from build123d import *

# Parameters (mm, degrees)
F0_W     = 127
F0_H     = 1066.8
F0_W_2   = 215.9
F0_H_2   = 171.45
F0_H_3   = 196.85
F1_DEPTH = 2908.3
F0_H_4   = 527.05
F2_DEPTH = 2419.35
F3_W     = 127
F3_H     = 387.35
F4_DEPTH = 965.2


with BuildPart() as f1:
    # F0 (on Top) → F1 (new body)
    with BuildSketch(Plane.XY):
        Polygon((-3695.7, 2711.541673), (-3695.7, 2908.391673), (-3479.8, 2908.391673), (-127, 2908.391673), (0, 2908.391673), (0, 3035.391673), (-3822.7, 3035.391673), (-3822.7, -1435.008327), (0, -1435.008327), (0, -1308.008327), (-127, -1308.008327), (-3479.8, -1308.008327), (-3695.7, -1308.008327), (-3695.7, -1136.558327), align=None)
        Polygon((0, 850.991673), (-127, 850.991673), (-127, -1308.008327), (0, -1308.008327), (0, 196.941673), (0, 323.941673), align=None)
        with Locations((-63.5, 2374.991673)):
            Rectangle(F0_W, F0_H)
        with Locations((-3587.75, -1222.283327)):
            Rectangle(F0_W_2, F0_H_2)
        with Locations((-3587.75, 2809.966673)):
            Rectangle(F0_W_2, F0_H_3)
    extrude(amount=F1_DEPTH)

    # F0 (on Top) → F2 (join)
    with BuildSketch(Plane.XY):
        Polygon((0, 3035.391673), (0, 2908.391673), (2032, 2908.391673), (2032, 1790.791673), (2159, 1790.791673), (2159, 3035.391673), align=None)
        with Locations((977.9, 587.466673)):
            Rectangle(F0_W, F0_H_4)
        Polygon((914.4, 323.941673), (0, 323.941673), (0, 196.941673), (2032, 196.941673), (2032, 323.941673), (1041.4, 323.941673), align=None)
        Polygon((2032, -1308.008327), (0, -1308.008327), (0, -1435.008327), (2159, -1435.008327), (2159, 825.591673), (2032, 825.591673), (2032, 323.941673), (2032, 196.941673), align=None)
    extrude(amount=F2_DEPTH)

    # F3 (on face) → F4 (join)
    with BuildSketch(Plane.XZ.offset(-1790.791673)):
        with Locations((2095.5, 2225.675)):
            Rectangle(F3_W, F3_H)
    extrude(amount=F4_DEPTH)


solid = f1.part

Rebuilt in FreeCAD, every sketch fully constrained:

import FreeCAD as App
import Part
import Sketcher
Q = App.Units.Quantity

doc = App.newDocument("Part")
params = doc.addObject("Spreadsheet::Sheet", "Params")
for row, (alias, value) in enumerate([
    ("sketch1_width", "132 in"),
    ("sketch1_width2", "5 in"),
    ("sketch1_height", "42 in"),
    ("sketch1_height2", "47 in"),
    ("sketch1_height3", "176 in"),
    ("pad1_length", "114.5 in"),
    ("sketch2_width", "80 in"),
    ("sketch2_width2", "5 in"),
    ("sketch2_width3", "36 in"),
    ("sketch2_height", "44 in"),
    ("sketch2_height2", "89 in"),
    ("pad2_length", "95.25 in"),
    ("sketch3_width", "5 in"),
    ("sketch3_height", "15.25 in"),
    ("pad3_length", "38 in"),
], start=1):
    params.set(f"A{row}", alias)
    params.set(f"B{row}", "=" + value)
    params.setAlias(f"B{row}", alias)

body = doc.addObject("PartDesign::Body", "Body")

sketch1 = body.newObject("Sketcher::SketchObject", "Sketch")
sketch1.AttachmentSupport = (doc.getObject("XY_Plane"), [""])
sketch1.MapMode = "FlatFace"
sketch1.addGeometry(Part.LineSegment(App.Vector(-3480, 2908, 0), App.Vector(-127, 2908, 0)), False)
sketch1.addGeometry(Part.LineSegment(App.Vector(-127, 2908, 0), App.Vector(-127, 1842, 0)), False)
sketch1.addGeometry(Part.LineSegment(App.Vector(-127, 1842, 0), App.Vector(0, 1842, 0)), False)
sketch1.addGeometry(Part.LineSegment(App.Vector(0, 1842, 0), App.Vector(0, 3035, 0)), False)
sketch1.addGeometry(Part.LineSegment(App.Vector(0, 3035, 0), App.Vector(-3823, 3035, 0)), False)
sketch1.addGeometry(Part.LineSegment(App.Vector(-3823, 3035, 0), App.Vector(-3823, -1435, 0)), False)
sketch1.addGeometry(Part.LineSegment(App.Vector(-3823, -1435, 0), App.Vector(0, -1435, 0)), False)
sketch1.addGeometry(Part.LineSegment(App.Vector(0, -1435, 0), App.Vector(0, 851, 0)), False)
sketch1.addGeometry(Part.LineSegment(App.Vector(0, 851, 0), App.Vector(-127, 851, 0)), False)
sketch1.addGeometry(Part.LineSegment(App.Vector(-127, 851, 0), App.Vector(-127, -1308, 0)), False)
sketch1.addGeometry(Part.LineSegment(App.Vector(-127, -1308, 0), App.Vector(-3480, -1308, 0)), False)
sketch1.addGeometry(Part.LineSegment(App.Vector(-3480, -1308, 0), App.Vector(-3480, -1137, 0)), False)
sketch1.addGeometry(Part.LineSegment(App.Vector(-3480, -1137, 0), App.Vector(-3696, -1137, 0)), False)
sketch1.addGeometry(Part.LineSegment(App.Vector(-3696, -1137, 0), App.Vector(-3696, 2712, 0)), False)
sketch1.addGeometry(Part.LineSegment(App.Vector(-3696, 2712, 0), App.Vector(-3480, 2712, 0)), False)
sketch1.addGeometry(Part.LineSegment(App.Vector(-3480, 2712, 0), App.Vector(-3480, 2908, 0)), False)
sketch1.addConstraint(Sketcher.Constraint("Coincident", 0, 2, 1, 1))
sketch1.addConstraint(Sketcher.Constraint("Coincident", 1, 2, 2, 1))
sketch1.addConstraint(Sketcher.Constraint("Coincident", 2, 2, 3, 1))
sketch1.addConstraint(Sketcher.Constraint("Coincident", 3, 2, 4, 1))
sketch1.addConstraint(Sketcher.Constraint("Coincident", 4, 2, 5, 1))
sketch1.addConstraint(Sketcher.Constraint("Coincident", 5, 2, 6, 1))
sketch1.addConstraint(Sketcher.Constraint("Coincident", 6, 2, 7, 1))
sketch1.addConstraint(Sketcher.Constraint("Coincident", 7, 2, 8, 1))
sketch1.addConstraint(Sketcher.Constraint("Coincident", 8, 2, 9, 1))
sketch1.addConstraint(Sketcher.Constraint("Coincident", 9, 2, 10, 1))
sketch1.addConstraint(Sketcher.Constraint("Coincident", 10, 2, 11, 1))
sketch1.addConstraint(Sketcher.Constraint("Coincident", 11, 2, 12, 1))
sketch1.addConstraint(Sketcher.Constraint("Coincident", 12, 2, 13, 1))
sketch1.addConstraint(Sketcher.Constraint("Coincident", 13, 2, 14, 1))
sketch1.addConstraint(Sketcher.Constraint("Coincident", 14, 2, 15, 1))
sketch1.addConstraint(Sketcher.Constraint("Coincident", 15, 2, 0, 1))
sketch1.addConstraint(Sketcher.Constraint("Horizontal", 0))
sketch1.addConstraint(Sketcher.Constraint("Vertical", 1))
sketch1.addConstraint(Sketcher.Constraint("Horizontal", 2))
sketch1.addConstraint(Sketcher.Constraint("Vertical", 3))
sketch1.addConstraint(Sketcher.Constraint("Horizontal", 4))
sketch1.addConstraint(Sketcher.Constraint("Vertical", 5))
sketch1.addConstraint(Sketcher.Constraint("Horizontal", 6))
sketch1.addConstraint(Sketcher.Constraint("Vertical", 7))
sketch1.addConstraint(Sketcher.Constraint("Horizontal", 8))
sketch1.addConstraint(Sketcher.Constraint("Vertical", 9))
sketch1.addConstraint(Sketcher.Constraint("Horizontal", 10))
sketch1.addConstraint(Sketcher.Constraint("Vertical", 11))
sketch1.addConstraint(Sketcher.Constraint("Horizontal", 12))
sketch1.addConstraint(Sketcher.Constraint("Vertical", 13))
sketch1.addConstraint(Sketcher.Constraint("Horizontal", 14))
sketch1.addConstraint(Sketcher.Constraint("Vertical", 15))
sketch1.addConstraint(Sketcher.Constraint("PointOnObject", 2, 2, -2))
sketch1.addConstraint(Sketcher.Constraint("PointOnObject", 6, 2, -2))
sketch1.addConstraint(Sketcher.Constraint("Vertical", 1, 2, 8, 2))
sketch1.addConstraint(Sketcher.Constraint("Vertical", 11, 2, 14, 2))
sketch1.addConstraint(Sketcher.Constraint("DistanceX", 0, 1, 0, 2, Q("132 in")))
sketch1.addConstraint(Sketcher.Constraint("DistanceX", 2, 1, 2, 2, Q("5 in")))
sketch1.addConstraint(Sketcher.Constraint("DistanceY", 1, 2, 1, 1, Q("42 in")))
sketch1.addConstraint(Sketcher.Constraint("DistanceY", 3, 1, 3, 2, Q("47 in")))
sketch1.addConstraint(Sketcher.Constraint("DistanceY", 5, 2, 5, 1, Q("176 in")))
sketch1.addConstraint(Sketcher.Constraint("DistanceY", 7, 1, 7, 2, Q("90 in")))
sketch1.addConstraint(Sketcher.Constraint("DistanceY", 9, 2, 9, 1, Q("85 in")))
sketch1.addConstraint(Sketcher.Constraint("DistanceX", 4, 2, 4, 1, Q("150.5 in")))
sketch1.addConstraint(Sketcher.Constraint("DistanceX", 12, 2, 12, 1, Q("8.5 in")))
sketch1.addConstraint(Sketcher.Constraint("DistanceY", 13, 1, 13, 2, Q("151.5 in")))
sketch1.addConstraint(Sketcher.Constraint("DistanceY", 11, 1, 11, 2, Q("6.75 in")))
sketch1.addConstraint(Sketcher.Constraint("DistanceY", -1, 1, 0, 2, Q("2908.391673 mm")))
sketch1.setExpression("Constraints[36]", "Params.sketch1_width")
sketch1.setExpression("Constraints[37]", "Params.sketch1_width2")
sketch1.setExpression("Constraints[38]", "Params.sketch1_height")
sketch1.setExpression("Constraints[39]", "Params.sketch1_height2")
sketch1.setExpression("Constraints[40]", "Params.sketch1_height3")
pad1 = body.newObject("PartDesign::Pad", "Pad")
pad1.Profile = sketch1
pad1.setExpression("Length", "Params.pad1_length")

sketch2 = body.newObject("Sketcher::SketchObject", "Sketch001")
sketch2.AttachmentSupport = (doc.getObject("XY_Plane"), [""])
sketch2.MapMode = "FlatFace"
sketch2.addGeometry(Part.LineSegment(App.Vector(0, 3035, 0), App.Vector(0, 2908, 0)), False)
sketch2.addGeometry(Part.LineSegment(App.Vector(0, 2908, 0), App.Vector(2032, 2908, 0)), False)
sketch2.addGeometry(Part.LineSegment(App.Vector(2032, 2908, 0), App.Vector(2032, 1791, 0)), False)
sketch2.addGeometry(Part.LineSegment(App.Vector(2032, 1791, 0), App.Vector(2159, 1791, 0)), False)
sketch2.addGeometry(Part.LineSegment(App.Vector(2159, 1791, 0), App.Vector(2159, 3035, 0)), False)
sketch2.addGeometry(Part.LineSegment(App.Vector(2159, 3035, 0), App.Vector(0, 3035, 0)), False)
sketch2.addGeometry(Part.LineSegment(App.Vector(914, 851, 0), App.Vector(914, 324, 0)), False)
sketch2.addGeometry(Part.LineSegment(App.Vector(914, 324, 0), App.Vector(0, 324, 0)), False)
sketch2.addGeometry(Part.LineSegment(App.Vector(0, 324, 0), App.Vector(0, 197, 0)), False)
sketch2.addGeometry(Part.LineSegment(App.Vector(0, 197, 0), App.Vector(2032, 197, 0)), False)
sketch2.addGeometry(Part.LineSegment(App.Vector(2032, 197, 0), App.Vector(2032, -1308, 0)), False)
sketch2.addGeometry(Part.LineSegment(App.Vector(2032, -1308, 0), App.Vector(0, -1308, 0)), False)
sketch2.addGeometry(Part.LineSegment(App.Vector(0, -1308, 0), App.Vector(0, -1435, 0)), False)
sketch2.addGeometry(Part.LineSegment(App.Vector(0, -1435, 0), App.Vector(2159, -1435, 0)), False)
sketch2.addGeometry(Part.LineSegment(App.Vector(2159, -1435, 0), App.Vector(2159, 826, 0)), False)
sketch2.addGeometry(Part.LineSegment(App.Vector(2159, 826, 0), App.Vector(2032, 826, 0)), False)
sketch2.addGeometry(Part.LineSegment(App.Vector(2032, 826, 0), App.Vector(2032, 324, 0)), False)
sketch2.addGeometry(Part.LineSegment(App.Vector(2032, 324, 0), App.Vector(1041, 324, 0)), False)
sketch2.addGeometry(Part.LineSegment(App.Vector(1041, 324, 0), App.Vector(1041, 851, 0)), False)
sketch2.addGeometry(Part.LineSegment(App.Vector(1041, 851, 0), App.Vector(914, 851, 0)), False)
sketch2.addConstraint(Sketcher.Constraint("Coincident", 0, 2, 1, 1))
sketch2.addConstraint(Sketcher.Constraint("Coincident", 1, 2, 2, 1))
sketch2.addConstraint(Sketcher.Constraint("Coincident", 2, 2, 3, 1))
sketch2.addConstraint(Sketcher.Constraint("Coincident", 3, 2, 4, 1))
sketch2.addConstraint(Sketcher.Constraint("Coincident", 4, 2, 5, 1))
sketch2.addConstraint(Sketcher.Constraint("Coincident", 5, 2, 0, 1))
sketch2.addConstraint(Sketcher.Constraint("Coincident", 6, 2, 7, 1))
sketch2.addConstraint(Sketcher.Constraint("Coincident", 7, 2, 8, 1))
sketch2.addConstraint(Sketcher.Constraint("Coincident", 8, 2, 9, 1))
sketch2.addConstraint(Sketcher.Constraint("Coincident", 9, 2, 10, 1))
sketch2.addConstraint(Sketcher.Constraint("Coincident", 10, 2, 11, 1))
sketch2.addConstraint(Sketcher.Constraint("Coincident", 11, 2, 12, 1))
sketch2.addConstraint(Sketcher.Constraint("Coincident", 12, 2, 13, 1))
sketch2.addConstraint(Sketcher.Constraint("Coincident", 13, 2, 14, 1))
sketch2.addConstraint(Sketcher.Constraint("Coincident", 14, 2, 15, 1))
sketch2.addConstraint(Sketcher.Constraint("Coincident", 15, 2, 16, 1))
sketch2.addConstraint(Sketcher.Constraint("Coincident", 16, 2, 17, 1))
sketch2.addConstraint(Sketcher.Constraint("Coincident", 17, 2, 18, 1))
sketch2.addConstraint(Sketcher.Constraint("Coincident", 18, 2, 19, 1))
sketch2.addConstraint(Sketcher.Constraint("Coincident", 19, 2, 6, 1))
sketch2.addConstraint(Sketcher.Constraint("Vertical", 0))
sketch2.addConstraint(Sketcher.Constraint("Horizontal", 1))
sketch2.addConstraint(Sketcher.Constraint("Vertical", 2))
sketch2.addConstraint(Sketcher.Constraint("Horizontal", 3))
sketch2.addConstraint(Sketcher.Constraint("Vertical", 4))
sketch2.addConstraint(Sketcher.Constraint("Horizontal", 5))
sketch2.addConstraint(Sketcher.Constraint("Vertical", 6))
sketch2.addConstraint(Sketcher.Constraint("Horizontal", 7))
sketch2.addConstraint(Sketcher.Constraint("Vertical", 8))
sketch2.addConstraint(Sketcher.Constraint("Horizontal", 9))
sketch2.addConstraint(Sketcher.Constraint("Vertical", 10))
sketch2.addConstraint(Sketcher.Constraint("Horizontal", 11))
sketch2.addConstraint(Sketcher.Constraint("Vertical", 12))
sketch2.addConstraint(Sketcher.Constraint("Horizontal", 13))
sketch2.addConstraint(Sketcher.Constraint("Vertical", 14))
sketch2.addConstraint(Sketcher.Constraint("Horizontal", 15))
sketch2.addConstraint(Sketcher.Constraint("Vertical", 16))
sketch2.addConstraint(Sketcher.Constraint("Horizontal", 17))
sketch2.addConstraint(Sketcher.Constraint("Vertical", 18))
sketch2.addConstraint(Sketcher.Constraint("Horizontal", 19))
sketch2.addConstraint(Sketcher.Constraint("PointOnObject", 0, 2, -2))
sketch2.addConstraint(Sketcher.Constraint("PointOnObject", 7, 2, -2))
sketch2.addConstraint(Sketcher.Constraint("PointOnObject", 11, 2, -2))
sketch2.addConstraint(Sketcher.Constraint("Horizontal", 7, 2, 16, 2))
sketch2.addConstraint(Sketcher.Constraint("Vertical", 2, 2, 9, 2))
sketch2.addConstraint(Sketcher.Constraint("Vertical", 4, 2, 13, 2))
sketch2.addConstraint(Sketcher.Constraint("Vertical", 10, 2, 15, 2))
sketch2.addConstraint(Sketcher.Constraint("Equal", 15, 19))
sketch2.addConstraint(Sketcher.Constraint("Equal", 19, 0))
sketch2.addConstraint(Sketcher.Constraint("Equal", 0, 8))
sketch2.addConstraint(Sketcher.Constraint("Equal", 8, 12))
sketch2.addConstraint(Sketcher.Constraint("DistanceX", 1, 1, 1, 2, Q("80 in")))
sketch2.addConstraint(Sketcher.Constraint("DistanceX", 3, 1, 3, 2, Q("5 in")))
sketch2.addConstraint(Sketcher.Constraint("DistanceX", 7, 2, 7, 1, Q("36 in")))
sketch2.addConstraint(Sketcher.Constraint("DistanceY", 2, 2, 2, 1, Q("44 in")))
sketch2.addConstraint(Sketcher.Constraint("DistanceY", 14, 1, 14, 2, Q("89 in")))
sketch2.addConstraint(Sketcher.Constraint("DistanceY", 10, 2, 2, 2, Q("122 in")))
sketch2.addConstraint(Sketcher.Constraint("DistanceY", 15, 2, 18, 2, Q("1 in")))
sketch2.addConstraint(Sketcher.Constraint("DistanceY", 6, 2, 6, 1, Q("20.75 in")))
sketch2.addConstraint(Sketcher.Constraint("DistanceY", -1, 1, 0, 2, Q("2908.391673 mm")))
sketch2.setExpression("Constraints[51]", "Params.sketch2_width")
sketch2.setExpression("Constraints[52]", "Params.sketch2_width2")
sketch2.setExpression("Constraints[53]", "Params.sketch2_width3")
sketch2.setExpression("Constraints[54]", "Params.sketch2_height")
sketch2.setExpression("Constraints[55]", "Params.sketch2_height2")
pad2 = body.newObject("PartDesign::Pad", "Pad001")
pad2.Profile = sketch2
pad2.setExpression("Length", "Params.pad2_length")

sketch3 = body.newObject("Sketcher::SketchObject", "Sketch002")
sketch3.AttachmentSupport = (doc.getObject("XZ_Plane"), [""])
sketch3.MapMode = "FlatFace"
sketch3.AttachmentOffset = App.Placement(App.Vector(0, 0, -1790.791673), App.Rotation())
sketch3.addGeometry(Part.LineSegment(App.Vector(2032, 2419, 0), App.Vector(2032, 2032, 0)), False)
sketch3.addGeometry(Part.LineSegment(App.Vector(2032, 2032, 0), App.Vector(2159, 2032, 0)), False)
sketch3.addGeometry(Part.LineSegment(App.Vector(2159, 2032, 0), App.Vector(2159, 2419, 0)), False)
sketch3.addGeometry(Part.LineSegment(App.Vector(2159, 2419, 0), App.Vector(2032, 2419, 0)), False)
sketch3.addConstraint(Sketcher.Constraint("Coincident", 0, 2, 1, 1))
sketch3.addConstraint(Sketcher.Constraint("Coincident", 1, 2, 2, 1))
sketch3.addConstraint(Sketcher.Constraint("Coincident", 2, 2, 3, 1))
sketch3.addConstraint(Sketcher.Constraint("Coincident", 3, 2, 0, 1))
sketch3.addConstraint(Sketcher.Constraint("Vertical", 0))
sketch3.addConstraint(Sketcher.Constraint("Horizontal", 1))
sketch3.addConstraint(Sketcher.Constraint("Vertical", 2))
sketch3.addConstraint(Sketcher.Constraint("Horizontal", 3))
sketch3.addConstraint(Sketcher.Constraint("DistanceX", 1, 1, 1, 2, Q("5 in")))
sketch3.addConstraint(Sketcher.Constraint("DistanceX", -1, 1, 0, 2, Q("80 in")))
sketch3.addConstraint(Sketcher.Constraint("DistanceY", -1, 1, 0, 2, Q("80 in")))
sketch3.addConstraint(Sketcher.Constraint("DistanceY", 0, 2, 0, 1, Q("15.25 in")))
sketch3.setExpression("Constraints[8]", "Params.sketch3_width")
sketch3.setExpression("Constraints[11]", "Params.sketch3_height")
pad3 = body.newObject("PartDesign::Pad", "Pad002")
pad3.Profile = sketch3
pad3.setExpression("Length", "Params.pad3_length")

doc.recompute()
